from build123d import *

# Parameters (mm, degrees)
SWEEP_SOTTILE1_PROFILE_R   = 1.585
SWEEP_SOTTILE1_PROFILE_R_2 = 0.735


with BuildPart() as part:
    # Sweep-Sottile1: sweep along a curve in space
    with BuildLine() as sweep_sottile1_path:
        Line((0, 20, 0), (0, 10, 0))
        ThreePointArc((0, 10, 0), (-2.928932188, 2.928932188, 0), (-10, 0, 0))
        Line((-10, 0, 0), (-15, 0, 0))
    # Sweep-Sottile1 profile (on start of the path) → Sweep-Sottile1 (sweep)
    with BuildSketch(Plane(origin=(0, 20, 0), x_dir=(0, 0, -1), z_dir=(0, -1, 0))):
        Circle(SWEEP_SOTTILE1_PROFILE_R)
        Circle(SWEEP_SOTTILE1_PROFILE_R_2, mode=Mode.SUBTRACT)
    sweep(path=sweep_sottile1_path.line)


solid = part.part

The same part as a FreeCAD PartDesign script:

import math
import FreeCAD as App
import Part
import Sketcher

doc = App.newDocument("Part")
params = doc.addObject("Spreadsheet::Sheet", "Params")
for row, (alias, value) in enumerate([
    ("sketch1_diameter", "3.17 mm"),
    ("sketch1_diameter2", "1.47 mm"),
    ("sketch2_radius", "10 mm"),
    ("sketch2_width", "5 mm"),
    ("sketch2_height", "10 mm"),
], start=1):
    params.set(f"A{row}", alias)
    params.set(f"B{row}", "=" + value)
    params.setAlias(f"B{row}", alias)

body = doc.addObject("PartDesign::Body", "Body")

# Sketch on XZ plane
sketch1 = body.newObject("Sketcher::SketchObject", "Sketch")
sketch1.AttachmentSupport = (doc.getObject("XZ_Plane"), [""])
sketch1.MapMode = "FlatFace"
sketch1.AttachmentOffset = App.Placement(App.Vector(0, 0, -20), App.Rotation())
sketch1.addGeometry(Part.Circle(App.Vector(0, 0, 0), App.Vector(0, 0, 1), 1.6), False)
sketch1.addGeometry(Part.Circle(App.Vector(0, 0, 0), App.Vector(0, 0, 1), 0.7), False)
sketch1.addConstraint(Sketcher.Constraint("Coincident", 0, 3, -1, 1))
sketch1.addConstraint(Sketcher.Constraint("Coincident", 1, 3, -1, 1))
sketch1.addConstraint(Sketcher.Constraint("Diameter", 0, 3.17))
sketch1.addConstraint(Sketcher.Constraint("Diameter", 1, 1.47))
sketch1.setExpression("Constraints[2]", "Params.sketch1_diameter")
sketch1.setExpression("Constraints[3]", "Params.sketch1_diameter2")

# Sketch on XY plane
sketch2 = body.newObject("Sketcher::SketchObject", "Sketch001")
sketch2.AttachmentSupport = (doc.getObject("XY_Plane"), [""])
sketch2.MapMode = "FlatFace"
sketch2.addGeometry(Part.LineSegment(App.Vector(0, 20, 0), App.Vector(0, 10, 0)), False)
sketch2.addGeometry(Part.ArcOfCircle(Part.Circle(App.Vector(-10, 10, 0), App.Vector(0, 0, 1), 10), math.radians(-90), math.radians(0)), False)
sketch2.addGeometry(Part.LineSegment(App.Vector(-10, 0, 0), App.Vector(-15, 0, 0)), False)
sketch2.addConstraint(Sketcher.Constraint("Tangent", 0, 2, 1, 2))
sketch2.addConstraint(Sketcher.Constraint("Tangent", 1, 1, 2, 1))
sketch2.addConstraint(Sketcher.Constraint("Vertical", 0))
sketch2.addConstraint(Sketcher.Constraint("Horizontal", 2))
sketch2.addConstraint(Sketcher.Constraint("PointOnObject", 0, 1, -2))
sketch2.addConstraint(Sketcher.Constraint("PointOnObject", 1, 1, -1))
sketch2.addConstraint(Sketcher.Constraint("Radius", 1, 10.0))
sketch2.addConstraint(Sketcher.Constraint("DistanceX", 2, 2, 2, 1, 5.0))
sketch2.addConstraint(Sketcher.Constraint("DistanceY", 0, 2, 0, 1, 10.0))
sketch2.setExpression("Constraints[6]", "Params.sketch2_radius")
sketch2.setExpression("Constraints[7]", "Params.sketch2_width")
sketch2.setExpression("Constraints[8]", "Params.sketch2_height")
doc.recompute()

additivepipe = body.newObject("PartDesign::AdditivePipe", "AdditivePipe")
additivepipe.Profile = sketch1
additivepipe.Spine = (sketch2, ["Edge1", "Edge2", "Edge3"])

doc.recompute()
